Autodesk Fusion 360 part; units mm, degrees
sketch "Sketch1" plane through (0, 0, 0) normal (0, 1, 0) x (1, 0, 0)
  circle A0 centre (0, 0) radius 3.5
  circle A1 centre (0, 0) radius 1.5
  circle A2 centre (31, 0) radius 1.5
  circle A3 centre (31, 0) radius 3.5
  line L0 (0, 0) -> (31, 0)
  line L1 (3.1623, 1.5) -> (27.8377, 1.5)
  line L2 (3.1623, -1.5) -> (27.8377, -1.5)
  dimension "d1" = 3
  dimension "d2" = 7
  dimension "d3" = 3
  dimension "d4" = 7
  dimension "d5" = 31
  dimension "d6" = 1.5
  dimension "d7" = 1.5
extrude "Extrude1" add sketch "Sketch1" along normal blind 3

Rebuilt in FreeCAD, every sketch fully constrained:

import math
import FreeCAD as App
import Part
import Sketcher
from FreeCAD import Vector

doc = App.newDocument("Part")
body = doc.addObject("PartDesign::Body", "Body")

# Sketch on XZ plane
sketch1 = body.newObject("Sketcher::SketchObject", "Sketch")
sketch1.AttachmentSupport = (doc.getObject("XZ_Plane"), [""])
sketch1.MapMode = "FlatFace"
sketch1.addGeometry(Part.ArcOfCircle(Part.Circle(Vector(0, 0, 0), Vector(0, 0, 1), 3.5), math.radians(25.376777), math.radians(334.623223)), False)
sketch1.addGeometry(Part.LineSegment(Vector(3.1623, 1.5, 0), Vector(27.8377, 1.5, 0)), False)
sketch1.addGeometry(Part.ArcOfCircle(Part.Circle(Vector(31, 0, 0), Vector(0, 0, 1), 3.5), math.radians(-154.623223), math.radians(154.623223)), False)
sketch1.addGeometry(Part.LineSegment(Vector(27.8377, -1.5, 0), Vector(3.1623, -1.5, 0)), False)
sketch1.addGeometry(Part.Circle(Vector(0, 0, 0), Vector(0, 0, 1), 1.5), False)
sketch1.addGeometry(Part.Circle(Vector(31, 0, 0), Vector(0, 0, 1), 1.5), False)
sketch1.addConstraint(Sketcher.Constraint("Coincident", 0, 1, 1, 1))
sketch1.addConstraint(Sketcher.Constraint("Coincident", 1, 2, 2, 2))
sketch1.addConstraint(Sketcher.Constraint("Coincident", 2, 1, 3, 1))
sketch1.addConstraint(Sketcher.Constraint("Coincident", 3, 2, 0, 2))
sketch1.addConstraint(Sketcher.Constraint("Horizontal", 1))
sketch1.addConstraint(Sketcher.Constraint("Horizontal", 3))
sketch1.addConstraint(Sketcher.Constraint("Coincident", 0, 3, -1, 1))
sketch1.addConstraint(Sketcher.Constraint("Coincident", 4, 3, -1, 1))
sketch1.addConstraint(Sketcher.Constraint("Coincident", 5, 3, 2, 3))
sketch1.addConstraint(Sketcher.Constraint("Equal", 0, 2))
sketch1.addConstraint(Sketcher.Constraint("Equal", 4, 5))
sketch1.addConstraint(Sketcher.Constraint("Symmetric", 1, 2, 2, 1, -1))
sketch1.addConstraint(Sketcher.Constraint("Diameter", 4, 3.0))
sketch1.addConstraint(Sketcher.Constraint("Radius", 0, 3.5))
sketch1.addConstraint(Sketcher.Constraint("DistanceX", -1, 1, 2, 3, 31.0))
sketch1.addConstraint(Sketcher.Constraint("DistanceY", 2, 1, 1, 2, 3.0))
pad1 = body.newObject("PartDesign::Pad", "Pad")
pad1.Profile = sketch1
pad1.Length = 3
pad1.Reversed = True

doc.recompute()
